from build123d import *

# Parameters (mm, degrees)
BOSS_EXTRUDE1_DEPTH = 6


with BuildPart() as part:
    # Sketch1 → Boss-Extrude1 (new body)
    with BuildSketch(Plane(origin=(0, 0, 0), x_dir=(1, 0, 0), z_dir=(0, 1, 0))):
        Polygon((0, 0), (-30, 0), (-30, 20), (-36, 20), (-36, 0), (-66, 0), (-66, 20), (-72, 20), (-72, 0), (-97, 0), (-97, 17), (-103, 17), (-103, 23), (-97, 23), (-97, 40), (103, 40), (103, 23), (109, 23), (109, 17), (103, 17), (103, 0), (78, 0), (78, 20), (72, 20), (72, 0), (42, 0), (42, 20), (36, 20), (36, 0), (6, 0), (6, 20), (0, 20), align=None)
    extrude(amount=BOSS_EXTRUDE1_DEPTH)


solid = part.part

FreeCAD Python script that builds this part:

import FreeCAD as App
import Part
import Sketcher

V = App.Vector
Q = App.Units.Quantity

doc = App.newDocument("Part")
params = doc.addObject("Spreadsheet::Sheet", "Params")
for row, (alias, value) in enumerate([
    ("sketch1_width", "30 mm"),
    ("sketch1_width2", "6 mm"),
    ("sketch1_width3", "25 mm"),
    ("sketch1_height", "20 mm"),
    ("sketch1_height2", "17 mm"),
    ("pad1_length", "6 mm"),
], start=1):
    params.set(f"A{row}", alias)
    params.set(f"B{row}", "=" + value)
    params.setAlias(f"B{row}", alias)

body = doc.addObject("PartDesign::Body", "Body")

sketch1 = body.newObject("Sketcher::SketchObject", "Sketch")
sketch1.AttachmentSupport = (doc.getObject("XZ_Plane"), [""])
sketch1.MapMode = "FlatFace"
sketch1.addGeometry(Part.LineSegment(V(-30, 0, 0), V(0, 0, 0)), False)
sketch1.addGeometry(Part.LineSegment(V(0, 0, 0), V(0, -20, 0)), False)
sketch1.addGeometry(Part.LineSegment(V(0, -20, 0), V(6, -20, 0)), False)
sketch1.addGeometry(Part.LineSegment(V(6, -20, 0), V(6, 0, 0)), False)
sketch1.addGeometry(Part.LineSegment(V(6, 0, 0), V(36, 0, 0)), False)
sketch1.addGeometry(Part.LineSegment(V(36, 0, 0), V(36, -20, 0)), False)
sketch1.addGeometry(Part.LineSegment(V(36, -20, 0), V(42, -20, 0)), False)
sketch1.addGeometry(Part.LineSegment(V(42, -20, 0), V(42, 0, 0)), False)
sketch1.addGeometry(Part.LineSegment(V(42, 0, 0), V(72, 0, 0)), False)
sketch1.addGeometry(Part.LineSegment(V(72, 0, 0), V(72, -20, 0)), False)
sketch1.addGeometry(Part.LineSegment(V(72, -20, 0), V(78, -20, 0)), False)
sketch1.addGeometry(Part.LineSegment(V(78, -20, 0), V(78, 0, 0)), False)
sketch1.addGeometry(Part.LineSegment(V(78, 0, 0), V(103, 0, 0)), False)
sketch1.addGeometry(Part.LineSegment(V(103, 0, 0), V(103, -17, 0)), False)
sketch1.addGeometry(Part.LineSegment(V(103, -17, 0), V(109, -17, 0)), False)
sketch1.addGeometry(Part.LineSegment(V(109, -17, 0), V(109, -23, 0)), False)
sketch1.addGeometry(Part.LineSegment(V(109, -23, 0), V(103, -23, 0)), False)
sketch1.addGeometry(Part.LineSegment(V(103, -23, 0), V(103, -40, 0)), False)
sketch1.addGeometry(Part.LineSegment(V(103, -40, 0), V(-97, -40, 0)), False)
sketch1.addGeometry(Part.LineSegment(V(-97, -40, 0), V(-97, -23, 0)), False)
sketch1.addGeometry(Part.LineSegment(V(-97, -23, 0), V(-103, -23, 0)), False)
sketch1.addGeometry(Part.LineSegment(V(-103, -23, 0), V(-103, -17, 0)), False)
sketch1.addGeometry(Part.LineSegment(V(-103, -17, 0), V(-97, -17, 0)), False)
sketch1.addGeometry(Part.LineSegment(V(-97, -17, 0), V(-97, 0, 0)), False)
sketch1.addGeometry(Part.LineSegment(V(-97, 0, 0), V(-72, 0, 0)), False)
sketch1.addGeometry(Part.LineSegment(V(-72, 0, 0), V(-72, -20, 0)), False)
sketch1.addGeometry(Part.LineSegment(V(-72, -20, 0), V(-66, -20, 0)), False)
sketch1.addGeometry(Part.LineSegment(V(-66, -20, 0), V(-66, 0, 0)), False)
sketch1.addGeometry(Part.LineSegment(V(-66, 0, 0), V(-36, 0, 0)), False)
sketch1.addGeometry(Part.LineSegment(V(-36, 0, 0), V(-36, -20, 0)), False)
sketch1.addGeometry(Part.LineSegment(V(-36, -20, 0), V(-30, -20, 0)), False)
sketch1.addGeometry(Part.LineSegment(V(-30, -20, 0), V(-30, 0, 0)), False)
sketch1.addConstraint(Sketcher.Constraint("Coincident", 0, 2, 1, 1))
sketch1.addConstraint(Sketcher.Constraint("Coincident", 1, 2, 2, 1))
sketch1.addConstraint(Sketcher.Constraint("Coincident", 2, 2, 3, 1))
sketch1.addConstraint(Sketcher.Constraint("Coincident", 3, 2, 4, 1))
sketch1.addConstraint(Sketcher.Constraint("Coincident", 4, 2, 5, 1))
sketch1.addConstraint(Sketcher.Constraint("Coincident", 5, 2, 6, 1))
sketch1.addConstraint(Sketcher.Constraint("Coincident", 6, 2, 7, 1))
sketch1.addConstraint(Sketcher.Constraint("Coincident", 7, 2, 8, 1))
sketch1.addConstraint(Sketcher.Constraint("Coincident", 8, 2, 9, 1))
sketch1.addConstraint(Sketcher.Constraint("Coincident", 9, 2, 10, 1))
sketch1.addConstraint(Sketcher.Constraint("Coincident", 10, 2, 11, 1))
sketch1.addConstraint(Sketcher.Constraint("Coincident", 11, 2, 12, 1))
sketch1.addConstraint(Sketcher.Constraint("Coincident", 12, 2, 13, 1))
sketch1.addConstraint(Sketcher.Constraint("Coincident", 13, 2, 14, 1))
sketch1.addConstraint(Sketcher.Constraint("Coincident", 14, 2, 15, 1))
sketch1.addConstraint(Sketcher.Constraint("Coincident", 15, 2, 16, 1))
sketch1.addConstraint(Sketcher.Constraint("Coincident", 16, 2, 17, 1))
sketch1.addConstraint(Sketcher.Constraint("Coincident", 17, 2, 18, 1))
sketch1.addConstraint(Sketcher.Constraint("Coincident", 18, 2, 19, 1))
sketch1.addConstraint(Sketcher.Constraint("Coincident", 19, 2, 20, 1))
sketch1.addConstraint(Sketcher.Constraint("Coincident", 20, 2, 21, 1))
sketch1.addConstraint(Sketcher.Constraint("Coincident", 21, 2, 22, 1))
sketch1.addConstraint(Sketcher.Constraint("Coincident", 22, 2, 23, 1))
sketch1.addConstraint(Sketcher.Constraint("Coincident", 23, 2, 24, 1))
sketch1.addConstraint(Sketcher.Constraint("Coincident", 24, 2, 25, 1))
sketch1.addConstraint(Sketcher.Constraint("Coincident", 25, 2, 26, 1))
sketch1.addConstraint(Sketcher.Constraint("Coincident", 26, 2, 27, 1))
sketch1.addConstraint(Sketcher.Constraint("Coincident", 27, 2, 28, 1))
sketch1.addConstraint(Sketcher.Constraint("Coincident", 28, 2, 29, 1))
sketch1.addConstraint(Sketcher.Constraint("Coincident", 29, 2, 30, 1))
sketch1.addConstraint(Sketcher.Constraint("Coincident", 30, 2, 31, 1))
sketch1.addConstraint(Sketcher.Constraint("Coincident", 31, 2, 0, 1))
sketch1.addConstraint(Sketcher.Constraint("Horizontal", 0))
sketch1.addConstraint(Sketcher.Constraint("Vertical", 1))
sketch1.addConstraint(Sketcher.Constraint("Horizontal", 2))
sketch1.addConstraint(Sketcher.Constraint("Vertical", 3))
sketch1.addConstraint(Sketcher.Constraint("Horizontal", 4))
sketch1.addConstraint(Sketcher.Constraint("Vertical", 5))
sketch1.addConstraint(Sketcher.Constraint("Horizontal", 6))
sketch1.addConstraint(Sketcher.Constraint("Vertical", 7))
sketch1.addConstraint(Sketcher.Constraint("Horizontal", 8))
sketch1.addConstraint(Sketcher.Constraint("Vertical", 9))
sketch1.addConstraint(Sketcher.Constraint("Horizontal", 10))
sketch1.addConstraint(Sketcher.Constraint("Vertical", 11))
sketch1.addConstraint(Sketcher.Constraint("Horizontal", 12))
sketch1.addConstraint(Sketcher.Constraint("Vertical", 13))
sketch1.addConstraint(Sketcher.Constraint("Horizontal", 14))
sketch1.addConstraint(Sketcher.Constraint("Vertical", 15))
sketch1.addConstraint(Sketcher.Constraint("Horizontal", 16))
sketch1.addConstraint(Sketcher.Constraint("Vertical", 17))
sketch1.addConstraint(Sketcher.Constraint("Horizontal", 18))
sketch1.addConstraint(Sketcher.Constraint("Vertical", 19))
sketch1.addConstraint(Sketcher.Constraint("Horizontal", 20))
sketch1.addConstraint(Sketcher.Constraint("Vertical", 21))
sketch1.addConstraint(Sketcher.Constraint("Horizontal", 22))
sketch1.addConstraint(Sketcher.Constraint("Vertical", 23))
sketch1.addConstraint(Sketcher.Constraint("Horizontal", 24))
sketch1.addConstraint(Sketcher.Constraint("Vertical", 25))
sketch1.addConstraint(Sketcher.Constraint("Horizontal", 26))
sketch1.addConstraint(Sketcher.Constraint("Vertical", 27))
sketch1.addConstraint(Sketcher.Constraint("Horizontal", 28))
sketch1.addConstraint(Sketcher.Constraint("Vertical", 29))
sketch1.addConstraint(Sketcher.Constraint("Horizontal", 30))
sketch1.addConstraint(Sketcher.Constraint("Vertical", 31))
sketch1.addConstraint(Sketcher.Constraint("Coincident", 0, 2, -1, 1))
sketch1.addConstraint(Sketcher.Constraint("Symmetric", 8, 2, 24, 2, -1, 1))
sketch1.addConstraint(Sketcher.Constraint("Symmetric", 4, 2, 28, 2, -1, 1))
sketch1.addConstraint(Sketcher.Constraint("Symmetric", 16, 2, 20, 2, -2))
sketch1.addConstraint(Sketcher.Constraint("Symmetric", 13, 2, 21, 2, -2))
sketch1.addConstraint(Sketcher.Constraint("PointOnObject", 3, 2, -1))
sketch1.addConstraint(Sketcher.Constraint("PointOnObject", 7, 2, -1))
sketch1.addConstraint(Sketcher.Constraint("PointOnObject", 11, 2, -1))
sketch1.addConstraint(Sketcher.Constraint("Horizontal", 2, 2, 5, 2))
sketch1.addConstraint(Sketcher.Constraint("Horizontal", 6, 2, 9, 2))
sketch1.addConstraint(Sketcher.Constraint("Horizontal", 10, 2, 25, 2))
sketch1.addConstraint(Sketcher.Constraint("Horizontal", 26, 2, 29, 2))
sketch1.addConstraint(Sketcher.Constraint("Vertical", 19, 2, 22, 2))
sketch1.addConstraint(Sketcher.Constraint("Equal", 0, 4))
sketch1.addConstraint(Sketcher.Constraint("Equal", 2, 6))
sketch1.addConstraint(Sketcher.Constraint("Equal", 4, 8))
sketch1.addConstraint(Sketcher.Constraint("Equal", 6, 10))
sketch1.addConstraint(Sketcher.Constraint("Equal", 10, 14))
sketch1.addConstraint(Sketcher.Constraint("Equal", 16, 20))
sketch1.addConstraint(Sketcher.Constraint("Equal", 22, 26))
sketch1.addConstraint(Sketcher.Constraint("Equal", 30, 15))
sketch1.addConstraint(Sketcher.Constraint("Equal", 13, 17))
sketch1.addConstraint(Sketcher.Constraint("DistanceX", 0, 1, 0, 2, Q("30 mm")))
sketch1.addConstraint(Sketcher.Constraint("DistanceX", 2, 1, 2, 2, Q("6 mm")))
sketch1.addConstraint(Sketcher.Constraint("DistanceX", 12, 1, 12, 2, Q("25 mm")))
sketch1.addConstraint(Sketcher.Constraint("DistanceY", 1, 2, 1, 1, Q("20 mm")))
sketch1.addConstraint(Sketcher.Constraint("DistanceY", 13, 2, 13, 1, Q("17 mm")))
sketch1.setExpression("Constraints[86]", "Params.sketch1_width")
sketch1.setExpression("Constraints[87]", "Params.sketch1_width2")
sketch1.setExpression("Constraints[88]", "Params.sketch1_width3")
sketch1.setExpression("Constraints[89]", "Params.sketch1_height")
sketch1.setExpression("Constraints[90]", "Params.sketch1_height2")
pad1 = body.newObject("PartDesign::Pad", "Pad")
pad1.Profile = sketch1
pad1.setExpression("Length", "Params.pad1_length")
pad1.Reversed = True

doc.recompute()
